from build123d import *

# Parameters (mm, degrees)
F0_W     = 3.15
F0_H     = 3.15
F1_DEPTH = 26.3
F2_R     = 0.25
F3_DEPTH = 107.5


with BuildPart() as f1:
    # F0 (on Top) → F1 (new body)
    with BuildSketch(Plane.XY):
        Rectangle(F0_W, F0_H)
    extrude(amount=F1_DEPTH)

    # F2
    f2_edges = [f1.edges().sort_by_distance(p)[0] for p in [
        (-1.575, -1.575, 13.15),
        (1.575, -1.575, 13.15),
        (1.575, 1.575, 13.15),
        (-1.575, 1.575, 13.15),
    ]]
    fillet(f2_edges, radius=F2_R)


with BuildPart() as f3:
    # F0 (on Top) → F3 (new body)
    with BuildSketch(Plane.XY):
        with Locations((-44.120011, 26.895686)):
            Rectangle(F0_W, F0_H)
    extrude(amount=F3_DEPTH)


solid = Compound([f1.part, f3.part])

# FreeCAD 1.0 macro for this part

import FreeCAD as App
import Part
import Sketcher
from FreeCAD import Vector


def edges_at(feature, points):
    """Names of the edges that pass closest to the given points."""
    edges = feature.Shape.Edges
    near = lambda p: min(range(len(edges)), key=lambda i: edges[i].distToShape(Part.Vertex(*p))[0])
    return sorted({f"Edge{near(p) + 1}" for p in points})


def add_polygon(sketch, points):
    """Adds a closed chain of lines whose ends are joined by coincident constraints."""
    first, n = sketch.GeometryCount, len(points)
    for a, b in zip(points, points[1:] + points[:1]):
        sketch.addGeometry(Part.LineSegment(App.Vector(*a, 0), App.Vector(*b, 0)), False)
    for i in range(n):
        sketch.addConstraint(Sketcher.Constraint("Coincident", first + i, 2, first + (i + 1) % n, 1))

doc = App.newDocument("Part")
body = doc.addObject("PartDesign::Body", "Body")

sketch1 = doc.addObject("Sketcher::SketchObject", "Sketch")
body.addObject(sketch1)
sketch1.AttachmentSupport = (doc.XY_Plane, [""])
sketch1.MapMode = "FlatFace"
add_polygon(sketch1, [(-1.6, 1.6), (-1.6, -1.6), (1.6, -1.6), (1.6, 1.6)])
sketch1.addConstraint([
    Sketcher.Constraint("Vertical", 0),
    Sketcher.Constraint("Horizontal", 1),
    Sketcher.Constraint("Vertical", 2),
    Sketcher.Constraint("Horizontal", 3),
    Sketcher.Constraint("Symmetric", 0, 2, 2, 2, -1, 1),
    Sketcher.Constraint("Equal", 3, 0),
    Sketcher.Constraint("DistanceX", 1, 1, 1, 2, 3.15),
])
pad1 = doc.addObject("PartDesign::Pad", "Pad")
body.addObject(pad1)
pad1.Profile = sketch1
pad1.Length = 26.3
doc.recompute()

fillet = doc.addObject("PartDesign::Fillet", "Fillet")
body.addObject(fillet)
fillet.Base = (pad1, edges_at(pad1, [
    (-1.575, -1.575, 13.15),
    (1.575, -1.575, 13.15),
    (1.575, 1.575, 13.15),
    (-1.575, 1.575, 13.15),
]))
fillet.Radius = 0.25
body2 = doc.addObject("PartDesign::Body", "Body001")

sketch2 = doc.addObject("Sketcher::SketchObject", "Sketch001")
body2.addObject(sketch2)
sketch2.AttachmentSupport = (doc.getObject("XY_Plane001"), [""])
sketch2.MapMode = "FlatFace"
add_polygon(sketch2, [(-45.7, 28.5), (-45.7, 25.3), (-42.5, 25.3), (-42.5, 28.5)])
sketch2.addConstraint([
    Sketcher.Constraint("Vertical", 0),
    Sketcher.Constraint("Horizontal", 1),
    Sketcher.Constraint("Vertical", 2),
    Sketcher.Constraint("Horizontal", 3),
    Sketcher.Constraint("Equal", 3, 0),
    Sketcher.Constraint("DistanceX", 1, 1, 1, 2, 3.15),
    Sketcher.Constraint("DistanceX", 0, 2, -1, 1, 45.695011),
    Sketcher.Constraint("DistanceY", -1, 1, 0, 2, 25.320686),
])
pad2 = doc.addObject("PartDesign::Pad", "Pad001")
body2.addObject(pad2)
pad2.Profile = sketch2
pad2.Length = 107.5

doc.recompute()
